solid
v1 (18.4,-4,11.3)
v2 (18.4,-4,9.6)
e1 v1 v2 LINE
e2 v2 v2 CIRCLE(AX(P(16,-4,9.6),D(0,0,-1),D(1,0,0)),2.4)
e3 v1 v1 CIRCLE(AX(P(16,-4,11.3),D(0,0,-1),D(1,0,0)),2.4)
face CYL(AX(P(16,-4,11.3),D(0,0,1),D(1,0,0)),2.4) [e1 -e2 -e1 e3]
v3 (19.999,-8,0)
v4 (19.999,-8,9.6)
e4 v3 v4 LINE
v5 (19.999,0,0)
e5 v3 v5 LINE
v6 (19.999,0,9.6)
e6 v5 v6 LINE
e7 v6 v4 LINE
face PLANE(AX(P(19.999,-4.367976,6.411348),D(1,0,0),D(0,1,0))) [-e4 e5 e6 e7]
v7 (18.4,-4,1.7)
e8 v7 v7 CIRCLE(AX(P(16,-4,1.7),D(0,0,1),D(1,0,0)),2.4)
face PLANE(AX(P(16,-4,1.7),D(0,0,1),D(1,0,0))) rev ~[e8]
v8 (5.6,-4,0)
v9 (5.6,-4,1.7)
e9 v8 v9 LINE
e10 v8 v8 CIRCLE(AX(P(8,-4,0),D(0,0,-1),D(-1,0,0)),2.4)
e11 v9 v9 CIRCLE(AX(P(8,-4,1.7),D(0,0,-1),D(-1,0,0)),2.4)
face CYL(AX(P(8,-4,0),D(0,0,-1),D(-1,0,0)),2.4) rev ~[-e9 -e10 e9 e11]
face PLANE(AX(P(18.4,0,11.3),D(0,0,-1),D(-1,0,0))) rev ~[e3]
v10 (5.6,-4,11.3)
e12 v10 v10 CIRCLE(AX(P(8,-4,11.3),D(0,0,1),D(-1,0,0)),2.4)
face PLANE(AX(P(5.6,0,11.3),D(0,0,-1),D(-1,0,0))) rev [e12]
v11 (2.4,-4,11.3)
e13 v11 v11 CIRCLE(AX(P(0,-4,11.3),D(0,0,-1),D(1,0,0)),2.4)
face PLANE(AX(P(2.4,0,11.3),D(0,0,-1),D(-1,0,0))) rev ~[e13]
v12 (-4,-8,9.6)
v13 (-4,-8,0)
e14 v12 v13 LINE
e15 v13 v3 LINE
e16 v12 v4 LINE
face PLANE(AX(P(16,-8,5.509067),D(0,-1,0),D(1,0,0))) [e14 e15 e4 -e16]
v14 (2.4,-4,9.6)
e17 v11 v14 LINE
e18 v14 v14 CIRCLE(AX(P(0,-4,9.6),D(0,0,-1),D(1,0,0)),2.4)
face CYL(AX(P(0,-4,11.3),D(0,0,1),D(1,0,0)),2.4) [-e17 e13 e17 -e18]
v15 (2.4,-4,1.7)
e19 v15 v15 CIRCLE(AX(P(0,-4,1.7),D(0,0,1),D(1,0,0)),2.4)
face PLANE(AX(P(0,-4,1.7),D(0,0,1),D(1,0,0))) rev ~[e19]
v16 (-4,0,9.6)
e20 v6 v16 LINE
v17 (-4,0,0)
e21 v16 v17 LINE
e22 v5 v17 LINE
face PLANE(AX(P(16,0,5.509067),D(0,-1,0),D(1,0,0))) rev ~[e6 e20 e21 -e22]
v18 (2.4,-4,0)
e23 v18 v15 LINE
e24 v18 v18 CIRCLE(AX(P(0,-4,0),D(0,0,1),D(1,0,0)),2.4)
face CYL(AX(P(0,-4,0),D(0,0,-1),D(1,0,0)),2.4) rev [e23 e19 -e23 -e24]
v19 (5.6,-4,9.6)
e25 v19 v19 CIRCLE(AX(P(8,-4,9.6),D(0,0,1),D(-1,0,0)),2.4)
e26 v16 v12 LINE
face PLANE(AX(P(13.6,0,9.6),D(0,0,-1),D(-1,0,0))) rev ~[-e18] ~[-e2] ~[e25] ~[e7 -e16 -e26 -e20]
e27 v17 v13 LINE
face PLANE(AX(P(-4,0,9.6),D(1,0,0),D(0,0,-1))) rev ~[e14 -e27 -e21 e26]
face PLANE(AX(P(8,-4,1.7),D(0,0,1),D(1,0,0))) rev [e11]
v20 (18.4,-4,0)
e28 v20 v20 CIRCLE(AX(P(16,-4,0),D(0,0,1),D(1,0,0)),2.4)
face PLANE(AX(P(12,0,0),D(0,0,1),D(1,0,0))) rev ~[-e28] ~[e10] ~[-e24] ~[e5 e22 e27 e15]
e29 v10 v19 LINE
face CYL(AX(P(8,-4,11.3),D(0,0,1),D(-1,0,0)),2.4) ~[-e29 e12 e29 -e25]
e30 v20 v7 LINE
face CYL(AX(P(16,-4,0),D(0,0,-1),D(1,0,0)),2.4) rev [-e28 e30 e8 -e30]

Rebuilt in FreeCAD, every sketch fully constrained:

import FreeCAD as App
import Part
import Sketcher
Q = App.Units.Quantity

doc = App.newDocument("Part")
body = doc.addObject("PartDesign::Body", "Body")

# Sketch on XZ plane
sketch1 = body.newObject("Sketcher::SketchObject", "Sketch")
sketch1.AttachmentSupport = (doc.getObject("XZ_Plane"), [""])
sketch1.MapMode = "FlatFace"
sketch1.addGeometry([
    Part.LineSegment(App.Vector(-2.4, 9.6, 0), App.Vector(-4, 9.6, 0)),  # 0
    Part.LineSegment(App.Vector(-4, 9.6, 0), App.Vector(-4, 0, 0)),  # 1
    Part.LineSegment(App.Vector(-4, 0, 0), App.Vector(4, 0, 0)),  # 2
    Part.LineSegment(App.Vector(4, 0, 0), App.Vector(4, 9.6, 0)),  # 3
    Part.LineSegment(App.Vector(4, 9.6, 0), App.Vector(2.4, 9.6, 0)),  # 4
    Part.LineSegment(App.Vector(2.4, 9.6, 0), App.Vector(2.4, 11.3, 0)),  # 5
    Part.LineSegment(App.Vector(2.4, 11.3, 0), App.Vector(-2.4, 11.3, 0)),  # 6
    Part.LineSegment(App.Vector(-2.4, 11.3, 0), App.Vector(-2.4, 9.6, 0)),  # 7
], False)
sketch1.addConstraint([
    Sketcher.Constraint("Coincident", 0, 2, 1, 1),
    Sketcher.Constraint("Coincident", 1, 2, 2, 1),
    Sketcher.Constraint("Coincident", 2, 2, 3, 1),
    Sketcher.Constraint("Coincident", 3, 2, 4, 1),
    Sketcher.Constraint("Coincident", 4, 2, 5, 1),
    Sketcher.Constraint("Coincident", 5, 2, 6, 1),
    Sketcher.Constraint("Coincident", 6, 2, 7, 1),
    Sketcher.Constraint("Coincident", 7, 2, 0, 1),
    Sketcher.Constraint("Horizontal", 0),
    Sketcher.Constraint("Vertical", 1),
    Sketcher.Constraint("Horizontal", 2),
    Sketcher.Constraint("Vertical", 3),
    Sketcher.Constraint("Horizontal", 4),
    Sketcher.Constraint("Vertical", 5),
    Sketcher.Constraint("Horizontal", 6),
    Sketcher.Constraint("Vertical", 7),
    Sketcher.Constraint("Symmetric", 1, 2, 2, 2, -1, 1),
    Sketcher.Constraint("Symmetric", 4, 2, 7, 2, -2),
    Sketcher.Constraint("DistanceX", 2, 1, 2, 2, Q("8 mm")),
    Sketcher.Constraint("DistanceX", 0, 2, 0, 1, Q("1.6 mm")),
    Sketcher.Constraint("DistanceY", 1, 2, 1, 1, Q("9.6 mm")),
    Sketcher.Constraint("DistanceY", 5, 1, 5, 2, Q("1.7 mm")),
])
pad1 = body.newObject("PartDesign::Pad", "Pad")
pad1.Profile = sketch1
pad1.Length = 8

# Sketch on XY plane
sketch2 = body.newObject("Sketcher::SketchObject", "Sketch001")
sketch2.AttachmentSupport = (doc.getObject("XY_Plane"), [""])
sketch2.MapMode = "FlatFace"
sketch2.AttachmentOffset = App.Placement(App.Vector(0, 0, 11.3), App.Rotation())
sketch2.addGeometry([
    Part.LineSegment(App.Vector(-4, 0, 0), App.Vector(-4, -8, 0)),  # 0
    Part.LineSegment(App.Vector(-4, -8, 0), App.Vector(4, -8, 0)),  # 1
    Part.LineSegment(App.Vector(4, -8, 0), App.Vector(4, 0, 0)),  # 2
    Part.LineSegment(App.Vector(4, 0, 0), App.Vector(-4, 0, 0)),  # 3
    Part.Circle(App.Vector(0, -4, 0), App.Vector(0, 0, 1), 2.4),  # 4
], False)
sketch2.addConstraint([
    Sketcher.Constraint("Coincident", 0, 2, 1, 1),
    Sketcher.Constraint("Coincident", 1, 2, 2, 1),
    Sketcher.Constraint("Coincident", 2, 2, 3, 1),
    Sketcher.Constraint("Coincident", 3, 2, 0, 1),
    Sketcher.Constraint("Vertical", 0),
    Sketcher.Constraint("Horizontal", 1),
    Sketcher.Constraint("Vertical", 2),
    Sketcher.Constraint("Horizontal", 3),
    Sketcher.Constraint("Symmetric", 2, 2, 3, 2, -1, 1),
    Sketcher.Constraint("PointOnObject", 4, 3, -2),
    Sketcher.Constraint("Equal", 3, 0),
    Sketcher.Constraint("Diameter", 4, Q("4.8 mm")),
    Sketcher.Constraint("DistanceX", 1, 1, 1, 2, Q("8 mm")),
    Sketcher.Constraint("DistanceY", 4, 3, -1, 1, Q("4 mm")),
])
pocket1 = body.newObject("PartDesign::Pocket", "Pocket")
pocket1.Profile = sketch2
pocket1.Length = 1.7

# Sketch on XY plane
sketch3 = body.newObject("Sketcher::SketchObject", "Sketch002")
sketch3.AttachmentSupport = (doc.getObject("XY_Plane"), [""])
sketch3.MapMode = "FlatFace"
sketch3.addGeometry(Part.Circle(App.Vector(0, -4, 0), App.Vector(0, 0, 1), 2.4), False)
sketch3.addConstraint([
    Sketcher.Constraint("PointOnObject", 0, 3, -2),
    Sketcher.Constraint("Diameter", 0, Q("4.8 mm")),
    Sketcher.Constraint("DistanceY", 0, 3, -1, 1, Q("4 mm")),
])
pocket2 = body.newObject("PartDesign::Pocket", "Pocket001")
pocket2.Profile = sketch3
pocket2.Length = 1.7
pocket2.Reversed = True
body2 = doc.addObject("PartDesign::Body", "Body001")
doc.recompute()

body2.BaseFeature = body
doc.recompute()

mirroring = doc.addObject("Part::Mirroring", "Mirroring")
mirroring.Source = body
mirroring.Base = App.Vector(4, 0, 0)
mirroring.Normal = App.Vector(1, 0, 0)
body3 = doc.addObject("PartDesign::Body", "Body002")
body3.BaseFeature = mirroring
boolean = body2.newObject("PartDesign::Boolean", "Boolean")
boolean.Type = "Fuse"
boolean.addObjects([body3])
doc.recompute()
body4 = doc.addObject("PartDesign::Body", "Body003")
doc.recompute()

body4.BaseFeature = body2
doc.recompute()

mirroring2 = doc.addObject("Part::Mirroring", "Mirroring001")
mirroring2.Source = body2
mirroring2.Base = App.Vector(12, 0, 0)
mirroring2.Normal = App.Vector(1, 0, 0)
body5 = doc.addObject("PartDesign::Body", "Body004")
body5.BaseFeature = mirroring2
boolean2 = body4.newObject("PartDesign::Boolean", "Boolean001")
boolean2.Type = "Fuse"
boolean2.addObjects([body5])
doc.recompute()

# Sketch on YZ plane
sketch4 = body4.newObject("Sketcher::SketchObject", "Sketch003")
sketch4.AttachmentSupport = (doc.getObject("YZ_Plane003"), [""])
sketch4.MapMode = "FlatFace"
sketch4.AttachmentOffset = App.Placement(App.Vector(0, 0, 28), App.Rotation())
sketch4.addGeometry([
    Part.LineSegment(App.Vector(-14, 16, 0), App.Vector(-14, -3, 0)),
    Part.LineSegment(App.Vector(-14, -3, 0), App.Vector(5, -3, 0)),
    Part.LineSegment(App.Vector(5, -3, 0), App.Vector(5, 16, 0)),
    Part.LineSegment(App.Vector(5, 16, 0), App.Vector(-14, 16, 0)),
], False)
sketch4.addConstraint([
    Sketcher.Constraint("Coincident", 0, 2, 1, 1),
    Sketcher.Constraint("Coincident", 1, 2, 2, 1),
    Sketcher.Constraint("Coincident", 2, 2, 3, 1),
    Sketcher.Constraint("Coincident", 3, 2, 0, 1),
    Sketcher.Constraint("Vertical", 0),
    Sketcher.Constraint("Horizontal", 1),
    Sketcher.Constraint("Vertical", 2),
    Sketcher.Constraint("Horizontal", 3),
    Sketcher.Constraint("DistanceX", 1, 1, 1, 2, Q("18.341722 mm")),
    Sketcher.Constraint("DistanceY", 0, 2, -1, 1, Q("2.8876 mm")),
    Sketcher.Constraint("DistanceY", 0, 2, 0, 1, Q("18.597896 mm")),
    Sketcher.Constraint("DistanceX", 0, 2, -1, 1, Q("13.538837 mm")),
])
pocket3 = body4.newObject("PartDesign::Pocket", "Pocket002")
pocket3.Profile = sketch4
pocket3.Length = 8.001
mirroring.Visibility = False
mirroring2.Visibility = False

doc.recompute()
